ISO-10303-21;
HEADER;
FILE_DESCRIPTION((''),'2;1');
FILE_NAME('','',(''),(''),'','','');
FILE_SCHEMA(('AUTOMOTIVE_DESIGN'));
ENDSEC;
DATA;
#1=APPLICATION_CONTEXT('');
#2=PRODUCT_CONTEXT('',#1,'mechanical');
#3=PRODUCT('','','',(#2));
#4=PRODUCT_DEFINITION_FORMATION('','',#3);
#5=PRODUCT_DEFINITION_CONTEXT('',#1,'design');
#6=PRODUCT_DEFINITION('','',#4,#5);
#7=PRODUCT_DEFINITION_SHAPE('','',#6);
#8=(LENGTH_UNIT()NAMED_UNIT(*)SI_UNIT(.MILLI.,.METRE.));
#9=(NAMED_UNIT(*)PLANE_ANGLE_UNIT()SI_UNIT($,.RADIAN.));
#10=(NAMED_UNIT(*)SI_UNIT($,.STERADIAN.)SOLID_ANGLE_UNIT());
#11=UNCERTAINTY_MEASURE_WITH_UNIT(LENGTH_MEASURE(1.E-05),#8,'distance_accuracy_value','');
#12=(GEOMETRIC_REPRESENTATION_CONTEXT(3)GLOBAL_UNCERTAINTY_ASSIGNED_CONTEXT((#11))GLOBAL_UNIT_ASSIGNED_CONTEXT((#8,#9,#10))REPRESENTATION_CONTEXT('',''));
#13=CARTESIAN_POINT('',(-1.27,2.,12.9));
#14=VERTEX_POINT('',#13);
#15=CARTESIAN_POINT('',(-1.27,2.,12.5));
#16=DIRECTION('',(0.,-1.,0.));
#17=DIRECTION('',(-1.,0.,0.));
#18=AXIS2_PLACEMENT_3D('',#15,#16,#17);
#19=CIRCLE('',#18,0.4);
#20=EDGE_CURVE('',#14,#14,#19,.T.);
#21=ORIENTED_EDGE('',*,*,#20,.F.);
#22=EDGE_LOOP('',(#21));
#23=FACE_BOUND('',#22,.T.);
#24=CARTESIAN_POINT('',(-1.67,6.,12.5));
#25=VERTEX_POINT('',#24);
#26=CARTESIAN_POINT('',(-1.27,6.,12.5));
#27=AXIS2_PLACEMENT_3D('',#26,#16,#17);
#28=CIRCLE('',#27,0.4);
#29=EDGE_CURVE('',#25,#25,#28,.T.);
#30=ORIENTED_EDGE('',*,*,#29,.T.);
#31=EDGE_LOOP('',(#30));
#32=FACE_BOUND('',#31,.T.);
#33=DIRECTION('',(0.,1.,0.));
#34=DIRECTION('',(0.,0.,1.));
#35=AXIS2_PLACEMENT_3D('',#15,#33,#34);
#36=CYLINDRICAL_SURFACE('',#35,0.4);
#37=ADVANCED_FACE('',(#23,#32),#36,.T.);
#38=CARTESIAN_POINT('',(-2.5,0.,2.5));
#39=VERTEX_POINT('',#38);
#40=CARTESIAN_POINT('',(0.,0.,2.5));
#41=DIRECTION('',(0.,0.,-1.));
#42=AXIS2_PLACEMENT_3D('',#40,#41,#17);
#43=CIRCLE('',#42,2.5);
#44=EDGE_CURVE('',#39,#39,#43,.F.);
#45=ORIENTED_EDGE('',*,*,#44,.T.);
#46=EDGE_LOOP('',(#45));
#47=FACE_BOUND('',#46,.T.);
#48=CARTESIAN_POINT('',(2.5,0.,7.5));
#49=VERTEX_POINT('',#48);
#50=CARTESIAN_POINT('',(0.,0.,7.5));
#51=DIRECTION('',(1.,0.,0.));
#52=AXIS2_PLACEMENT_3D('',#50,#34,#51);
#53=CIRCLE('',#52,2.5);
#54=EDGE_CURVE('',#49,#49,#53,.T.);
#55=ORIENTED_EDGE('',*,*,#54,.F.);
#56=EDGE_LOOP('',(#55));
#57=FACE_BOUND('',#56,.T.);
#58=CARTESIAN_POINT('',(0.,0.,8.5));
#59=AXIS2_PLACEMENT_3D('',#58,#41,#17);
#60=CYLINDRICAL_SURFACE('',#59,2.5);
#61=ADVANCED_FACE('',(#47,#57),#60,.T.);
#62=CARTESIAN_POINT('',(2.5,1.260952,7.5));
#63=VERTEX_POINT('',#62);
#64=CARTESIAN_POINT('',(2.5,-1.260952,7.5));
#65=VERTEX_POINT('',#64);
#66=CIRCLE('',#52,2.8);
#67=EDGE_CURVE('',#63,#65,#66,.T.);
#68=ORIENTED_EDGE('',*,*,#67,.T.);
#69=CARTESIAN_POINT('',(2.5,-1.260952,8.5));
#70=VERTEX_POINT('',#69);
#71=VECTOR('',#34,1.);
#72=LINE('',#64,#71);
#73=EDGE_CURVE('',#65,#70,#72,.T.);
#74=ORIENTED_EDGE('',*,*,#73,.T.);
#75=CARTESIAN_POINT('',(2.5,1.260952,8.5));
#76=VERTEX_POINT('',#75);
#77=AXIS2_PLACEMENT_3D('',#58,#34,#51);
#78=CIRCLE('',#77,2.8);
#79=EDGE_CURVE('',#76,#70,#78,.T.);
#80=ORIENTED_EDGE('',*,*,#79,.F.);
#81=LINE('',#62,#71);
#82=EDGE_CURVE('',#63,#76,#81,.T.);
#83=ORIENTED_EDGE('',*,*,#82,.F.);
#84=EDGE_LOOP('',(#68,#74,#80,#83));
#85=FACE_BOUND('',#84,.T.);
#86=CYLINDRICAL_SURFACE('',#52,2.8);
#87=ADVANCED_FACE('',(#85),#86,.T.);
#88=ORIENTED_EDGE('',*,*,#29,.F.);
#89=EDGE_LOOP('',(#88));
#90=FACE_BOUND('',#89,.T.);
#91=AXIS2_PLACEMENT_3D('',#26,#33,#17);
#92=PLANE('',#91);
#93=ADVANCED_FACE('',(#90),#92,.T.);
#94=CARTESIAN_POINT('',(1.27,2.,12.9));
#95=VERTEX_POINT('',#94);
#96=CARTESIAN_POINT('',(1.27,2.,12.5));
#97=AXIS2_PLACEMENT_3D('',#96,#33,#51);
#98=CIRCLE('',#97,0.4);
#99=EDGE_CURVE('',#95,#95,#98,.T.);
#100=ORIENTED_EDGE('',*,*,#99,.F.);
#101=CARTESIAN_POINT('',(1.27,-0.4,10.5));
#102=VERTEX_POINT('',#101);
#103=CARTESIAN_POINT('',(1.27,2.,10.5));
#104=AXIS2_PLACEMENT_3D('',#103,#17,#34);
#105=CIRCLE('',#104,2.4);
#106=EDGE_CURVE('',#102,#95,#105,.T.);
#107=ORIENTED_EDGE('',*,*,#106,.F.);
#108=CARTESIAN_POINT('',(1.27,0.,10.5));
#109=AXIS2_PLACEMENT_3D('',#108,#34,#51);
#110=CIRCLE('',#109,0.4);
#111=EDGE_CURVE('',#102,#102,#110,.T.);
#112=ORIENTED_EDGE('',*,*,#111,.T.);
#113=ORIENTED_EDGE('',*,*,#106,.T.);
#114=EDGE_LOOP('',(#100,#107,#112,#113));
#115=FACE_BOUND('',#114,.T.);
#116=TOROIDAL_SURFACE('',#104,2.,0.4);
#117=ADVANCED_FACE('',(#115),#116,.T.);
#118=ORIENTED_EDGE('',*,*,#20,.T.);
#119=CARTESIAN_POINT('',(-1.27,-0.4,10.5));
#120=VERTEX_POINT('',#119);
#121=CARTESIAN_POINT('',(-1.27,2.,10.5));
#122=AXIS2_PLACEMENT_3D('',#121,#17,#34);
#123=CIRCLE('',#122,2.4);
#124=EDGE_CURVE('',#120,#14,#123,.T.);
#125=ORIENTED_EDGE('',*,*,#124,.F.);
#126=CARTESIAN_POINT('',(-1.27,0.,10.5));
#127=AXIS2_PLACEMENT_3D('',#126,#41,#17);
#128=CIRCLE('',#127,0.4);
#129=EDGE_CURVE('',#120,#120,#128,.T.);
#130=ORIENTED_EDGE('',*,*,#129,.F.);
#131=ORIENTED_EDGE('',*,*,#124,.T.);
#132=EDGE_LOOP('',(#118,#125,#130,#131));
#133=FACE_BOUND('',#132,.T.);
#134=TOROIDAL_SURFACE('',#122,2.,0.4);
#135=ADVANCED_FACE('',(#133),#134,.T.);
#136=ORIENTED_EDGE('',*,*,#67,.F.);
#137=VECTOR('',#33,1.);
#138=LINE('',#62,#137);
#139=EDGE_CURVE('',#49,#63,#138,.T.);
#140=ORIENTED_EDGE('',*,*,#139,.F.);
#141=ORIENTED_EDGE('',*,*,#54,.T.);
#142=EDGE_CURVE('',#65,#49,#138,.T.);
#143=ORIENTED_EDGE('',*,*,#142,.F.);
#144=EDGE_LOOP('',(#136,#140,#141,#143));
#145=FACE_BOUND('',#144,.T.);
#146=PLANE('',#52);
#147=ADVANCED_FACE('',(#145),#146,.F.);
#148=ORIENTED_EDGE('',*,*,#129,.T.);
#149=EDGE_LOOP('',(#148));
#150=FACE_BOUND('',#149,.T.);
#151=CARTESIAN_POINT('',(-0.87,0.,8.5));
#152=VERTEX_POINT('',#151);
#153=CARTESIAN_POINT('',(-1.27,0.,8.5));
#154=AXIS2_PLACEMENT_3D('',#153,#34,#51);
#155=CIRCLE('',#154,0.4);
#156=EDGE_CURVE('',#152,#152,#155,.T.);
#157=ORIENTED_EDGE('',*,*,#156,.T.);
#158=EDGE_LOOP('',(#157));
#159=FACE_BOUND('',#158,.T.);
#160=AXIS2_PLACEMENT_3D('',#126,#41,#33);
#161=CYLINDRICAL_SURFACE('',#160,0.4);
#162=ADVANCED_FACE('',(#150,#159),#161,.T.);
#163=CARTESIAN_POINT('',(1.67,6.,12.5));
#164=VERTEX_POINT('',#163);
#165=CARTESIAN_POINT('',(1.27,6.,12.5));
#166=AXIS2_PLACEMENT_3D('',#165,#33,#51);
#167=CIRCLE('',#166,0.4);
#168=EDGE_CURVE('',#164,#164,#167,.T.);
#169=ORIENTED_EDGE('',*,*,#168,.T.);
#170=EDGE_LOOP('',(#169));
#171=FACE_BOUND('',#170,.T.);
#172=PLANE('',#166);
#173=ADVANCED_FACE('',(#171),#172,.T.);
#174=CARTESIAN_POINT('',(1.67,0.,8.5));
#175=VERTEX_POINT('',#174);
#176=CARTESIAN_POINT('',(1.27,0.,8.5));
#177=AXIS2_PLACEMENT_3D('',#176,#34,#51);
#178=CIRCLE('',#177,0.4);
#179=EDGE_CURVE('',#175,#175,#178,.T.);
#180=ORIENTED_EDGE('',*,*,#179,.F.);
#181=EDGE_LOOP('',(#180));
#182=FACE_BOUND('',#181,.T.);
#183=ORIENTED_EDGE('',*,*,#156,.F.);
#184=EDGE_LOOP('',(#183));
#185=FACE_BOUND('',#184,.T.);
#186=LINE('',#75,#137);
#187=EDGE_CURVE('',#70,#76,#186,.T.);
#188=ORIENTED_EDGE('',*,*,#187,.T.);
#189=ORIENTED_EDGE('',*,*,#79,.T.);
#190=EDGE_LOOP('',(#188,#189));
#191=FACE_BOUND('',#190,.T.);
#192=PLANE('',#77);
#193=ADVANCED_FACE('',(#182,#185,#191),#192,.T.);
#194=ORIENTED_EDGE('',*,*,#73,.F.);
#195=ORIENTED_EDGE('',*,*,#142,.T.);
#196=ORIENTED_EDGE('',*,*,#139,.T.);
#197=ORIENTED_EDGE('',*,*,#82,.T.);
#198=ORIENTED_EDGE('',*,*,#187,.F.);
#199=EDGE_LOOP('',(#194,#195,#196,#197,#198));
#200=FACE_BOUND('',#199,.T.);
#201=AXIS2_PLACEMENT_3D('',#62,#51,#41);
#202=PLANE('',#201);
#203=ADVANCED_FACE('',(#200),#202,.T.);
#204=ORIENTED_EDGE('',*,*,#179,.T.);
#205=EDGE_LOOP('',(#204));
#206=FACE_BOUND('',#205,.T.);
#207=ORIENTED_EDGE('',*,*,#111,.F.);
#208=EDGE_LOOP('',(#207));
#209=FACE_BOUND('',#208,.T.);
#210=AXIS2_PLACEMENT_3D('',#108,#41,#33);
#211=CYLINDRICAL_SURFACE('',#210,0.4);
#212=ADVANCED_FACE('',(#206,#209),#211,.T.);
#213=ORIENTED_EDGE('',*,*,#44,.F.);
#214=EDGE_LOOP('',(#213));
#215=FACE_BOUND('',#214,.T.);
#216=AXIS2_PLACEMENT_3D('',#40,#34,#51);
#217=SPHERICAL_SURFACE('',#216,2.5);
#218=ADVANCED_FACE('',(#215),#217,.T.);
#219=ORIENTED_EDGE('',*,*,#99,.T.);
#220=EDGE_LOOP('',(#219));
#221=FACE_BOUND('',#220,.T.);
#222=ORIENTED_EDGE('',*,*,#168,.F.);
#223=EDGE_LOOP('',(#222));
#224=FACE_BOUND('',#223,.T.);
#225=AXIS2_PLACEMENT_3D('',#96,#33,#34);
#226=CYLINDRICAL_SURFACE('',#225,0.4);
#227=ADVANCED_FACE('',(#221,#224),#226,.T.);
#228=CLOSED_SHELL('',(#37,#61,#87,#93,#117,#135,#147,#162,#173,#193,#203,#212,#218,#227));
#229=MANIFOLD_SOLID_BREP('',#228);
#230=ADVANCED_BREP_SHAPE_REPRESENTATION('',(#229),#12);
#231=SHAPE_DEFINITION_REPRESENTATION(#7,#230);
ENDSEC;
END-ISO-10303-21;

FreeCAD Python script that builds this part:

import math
import FreeCAD as App
import Part
import Sketcher
from FreeCAD import Vector
Q = App.Units.Quantity


def edges_at(feature, points):
    """Names of the edges that pass closest to the given points."""
    edges = feature.Shape.Edges
    near = lambda p: min(range(len(edges)), key=lambda i: edges[i].distToShape(Part.Vertex(*p))[0])
    return sorted({f"Edge{near(p) + 1}" for p in points})

doc = App.newDocument("Part")
body = doc.addObject("PartDesign::Body", "Body")

# Sketch on XY plane
sketch1 = body.newObject("Sketcher::SketchObject", "Sketch")
sketch1.AttachmentSupport = (doc.getObject("XY_Plane"), [""])
sketch1.MapMode = "FlatFace"
sketch1.addGeometry(Part.Circle(Vector(0, 0, 0), Vector(0, 0, 1), 2.5), False)
sketch1.addConstraint([
    Sketcher.Constraint("Coincident", 0, 3, -1, 1),
    Sketcher.Constraint("Diameter", 0, Q("5 mm")),
])
pad1 = body.newObject("PartDesign::Pad", "Pad")
pad1.Profile = sketch1
pad1.Length = 8.5

# Sketch on XY plane
sketch2 = body.newObject("Sketcher::SketchObject", "Sketch001")
sketch2.AttachmentSupport = (doc.getObject("XY_Plane"), [""])
sketch2.MapMode = "FlatFace"
sketch2.AttachmentOffset = App.Placement(Vector(0, 0, 8.5), App.Rotation())
sketch2.addGeometry([
    Part.LineSegment(Vector(2.5, -1.260952, 0), Vector(2.5, 1.260952, 0)),
    Part.ArcOfCircle(Part.Circle(Vector(0, 0, 0), Vector(0, 0, 1), 2.8), math.radians(26.765501), math.radians(333.234499)),
], False)
sketch2.addConstraint([
    Sketcher.Constraint("Coincident", 0, 1, 1, 2),
    Sketcher.Constraint("Coincident", 1, 1, 0, 2),
    Sketcher.Constraint("Vertical", 0),
    Sketcher.Constraint("Coincident", 1, 3, -1, 1),
    Sketcher.Constraint("Radius", 1, Q("2.8 mm")),
    Sketcher.Constraint("DistanceX", -1, 1, 0, 1, Q("2.5 mm")),
])
pad2 = body.newObject("PartDesign::Pad", "Pad001")
pad2.Profile = sketch2
pad2.Length = 1
pad2.Reversed = True
doc.recompute()

fillet = body.newObject("PartDesign::Fillet", "Fillet")
fillet.Base = (pad2, edges_at(pad2, [(-2.5, 0, 0)]))
fillet.Radius = 2.5

# Sketch on XY plane
sketch3 = body.newObject("Sketcher::SketchObject", "Sketch002")
sketch3.AttachmentSupport = (doc.getObject("XY_Plane"), [""])
sketch3.MapMode = "FlatFace"
sketch3.AttachmentOffset = App.Placement(Vector(0, 0, 8.5), App.Rotation())
sketch3.addGeometry(Part.Circle(Vector(1.27, 0, 0), Vector(0, 0, 1), 0.4), False)
sketch3.addConstraint([
    Sketcher.Constraint("PointOnObject", 0, 3, -1),
    Sketcher.Constraint("Diameter", 0, Q("0.8 mm")),
    Sketcher.Constraint("DistanceX", -1, 1, 0, 3, Q("1.27 mm")),
])

# Sketch on YZ plane
sketch4 = body.newObject("Sketcher::SketchObject", "Sketch003")
sketch4.AttachmentSupport = (doc.getObject("YZ_Plane"), [""])
sketch4.MapMode = "FlatFace"
sketch4.AttachmentOffset = App.Placement(Vector(0, 0, 1.27), App.Rotation())
sketch4.addGeometry([
    Part.LineSegment(Vector(0, 8.5, 0), Vector(0, 10.5, 0)),
    Part.ArcOfCircle(Part.Circle(Vector(2, 10.5, 0), Vector(0, 0, 1), 2), math.radians(90), math.radians(180)),
    Part.LineSegment(Vector(2, 12.5, 0), Vector(6, 12.5, 0)),
], False)
sketch4.addConstraint([
    Sketcher.Constraint("Tangent", 0, 2, 1, 2),
    Sketcher.Constraint("Tangent", 1, 1, 2, 1),
    Sketcher.Constraint("Vertical", 0),
    Sketcher.Constraint("Horizontal", 2),
    Sketcher.Constraint("PointOnObject", 0, 1, -2),
    Sketcher.Constraint("Radius", 1, Q("2 mm")),
    Sketcher.Constraint("DistanceX", 2, 1, 2, 2, Q("4 mm")),
    Sketcher.Constraint("DistanceY", 0, 1, 0, 2, Q("2 mm")),
    Sketcher.Constraint("DistanceY", -1, 1, 1, 3, Q("10.5 mm")),
])
doc.recompute()

additivepipe = body.newObject("PartDesign::AdditivePipe", "AdditivePipe")
additivepipe.Profile = sketch3
additivepipe.Spine = (sketch4, ["Edge1", "Edge2", "Edge3"])
doc.recompute()

mirrored = body.newObject("PartDesign::Mirrored", "Mirrored")
mirrored.Originals = [additivepipe]
mirrored.MirrorPlane = (doc.getObject("YZ_Plane"), [""])
body.Tip = mirrored

doc.recompute()
